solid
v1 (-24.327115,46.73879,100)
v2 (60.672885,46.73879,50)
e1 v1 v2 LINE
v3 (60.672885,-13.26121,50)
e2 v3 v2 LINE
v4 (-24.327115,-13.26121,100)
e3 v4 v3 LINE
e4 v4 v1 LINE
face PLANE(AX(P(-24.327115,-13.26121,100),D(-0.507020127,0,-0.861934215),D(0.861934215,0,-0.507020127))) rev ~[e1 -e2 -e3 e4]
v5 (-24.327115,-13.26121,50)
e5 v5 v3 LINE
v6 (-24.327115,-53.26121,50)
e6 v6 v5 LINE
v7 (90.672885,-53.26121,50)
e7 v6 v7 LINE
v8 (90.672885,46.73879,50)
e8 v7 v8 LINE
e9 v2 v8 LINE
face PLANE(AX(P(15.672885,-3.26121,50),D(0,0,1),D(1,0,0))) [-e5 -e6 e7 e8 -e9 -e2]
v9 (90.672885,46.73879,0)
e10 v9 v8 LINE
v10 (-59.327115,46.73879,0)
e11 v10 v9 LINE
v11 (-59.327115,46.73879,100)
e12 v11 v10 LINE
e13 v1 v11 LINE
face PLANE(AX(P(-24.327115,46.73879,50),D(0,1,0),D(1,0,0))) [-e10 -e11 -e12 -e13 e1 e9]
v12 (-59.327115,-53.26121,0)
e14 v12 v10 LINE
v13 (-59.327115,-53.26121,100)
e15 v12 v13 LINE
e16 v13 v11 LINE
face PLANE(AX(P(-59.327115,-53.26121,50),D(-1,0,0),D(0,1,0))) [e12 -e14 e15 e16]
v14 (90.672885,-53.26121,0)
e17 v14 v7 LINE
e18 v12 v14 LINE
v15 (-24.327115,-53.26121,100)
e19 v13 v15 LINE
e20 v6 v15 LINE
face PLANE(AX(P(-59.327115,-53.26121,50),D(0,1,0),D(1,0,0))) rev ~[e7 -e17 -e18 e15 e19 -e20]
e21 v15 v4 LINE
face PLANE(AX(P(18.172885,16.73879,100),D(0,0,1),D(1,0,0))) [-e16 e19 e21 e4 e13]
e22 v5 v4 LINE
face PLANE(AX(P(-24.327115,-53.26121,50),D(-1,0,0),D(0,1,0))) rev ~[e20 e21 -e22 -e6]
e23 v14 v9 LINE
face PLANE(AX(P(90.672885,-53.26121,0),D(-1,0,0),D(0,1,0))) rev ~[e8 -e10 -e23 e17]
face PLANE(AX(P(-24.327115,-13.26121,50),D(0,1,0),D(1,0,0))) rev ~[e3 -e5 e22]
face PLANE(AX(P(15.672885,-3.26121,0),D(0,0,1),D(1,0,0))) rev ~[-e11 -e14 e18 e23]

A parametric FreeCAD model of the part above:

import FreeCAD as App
import Part
import Sketcher

V = App.Vector
Q = App.Units.Quantity

doc = App.newDocument("Part")
params = doc.addObject("Spreadsheet::Sheet", "Params")
for row, (alias, value) in enumerate([
    ("sketch1_width", "150 mm"),
    ("sketch1_height", "100 mm"),
    ("pad1_length", "50 mm"),
    ("sketch2_width", "35 mm"),
    ("sketch2_height", "100 mm"),
    ("pad2_length", "50 mm"),
    ("sketch3_width", "85 mm"),
    ("sketch3_height", "60 mm"),
    ("pad3_length", "50 mm"),
    ("sketch4_width", "85 mm"),
    ("sketch4_height", "50 mm"),
    ("pocket1_length", "60 mm"),
], start=1):
    params.set(f"A{row}", alias)
    params.set(f"B{row}", "=" + value)
    params.setAlias(f"B{row}", alias)

body = doc.addObject("PartDesign::Body", "Body")

sketch1 = body.newObject("Sketcher::SketchObject", "Sketch")
sketch1.AttachmentSupport = (doc.getObject("XY_Plane"), [""])
sketch1.MapMode = "FlatFace"
sketch1.addGeometry([
    Part.LineSegment(V(-59, 47, 0), V(-59, -53, 0)),
    Part.LineSegment(V(-59, -53, 0), V(91, -53, 0)),
    Part.LineSegment(V(91, -53, 0), V(91, 47, 0)),
    Part.LineSegment(V(91, 47, 0), V(-59, 47, 0)),
], False)
sketch1.addConstraint([
    Sketcher.Constraint("Coincident", 0, 2, 1, 1),
    Sketcher.Constraint("Coincident", 1, 2, 2, 1),
    Sketcher.Constraint("Coincident", 2, 2, 3, 1),
    Sketcher.Constraint("Coincident", 3, 2, 0, 1),
    Sketcher.Constraint("Vertical", 0),
    Sketcher.Constraint("Horizontal", 1),
    Sketcher.Constraint("Vertical", 2),
    Sketcher.Constraint("Horizontal", 3),
    Sketcher.Constraint("DistanceX", 1, 1, 1, 2, Q("150 mm")),
    Sketcher.Constraint("DistanceY", 0, 2, 0, 1, Q("100 mm")),
    Sketcher.Constraint("DistanceY", 0, 2, -1, 1, Q("53.26121 mm")),
    Sketcher.Constraint("DistanceX", 0, 2, -1, 1, Q("59.327115 mm")),
])
sketch1.setExpression("Constraints[8]", "Params.sketch1_width")
sketch1.setExpression("Constraints[9]", "Params.sketch1_height")
pad1 = body.newObject("PartDesign::Pad", "Pad")
pad1.Profile = sketch1
pad1.setExpression("Length", "Params.pad1_length")

sketch2 = body.newObject("Sketcher::SketchObject", "Sketch001")
sketch2.AttachmentSupport = (doc.getObject("XY_Plane"), [""])
sketch2.MapMode = "FlatFace"
sketch2.AttachmentOffset = App.Placement(V(0, 0, 50), App.Rotation())
sketch2.addGeometry([
    Part.LineSegment(V(-59, 47, 0), V(-59, -53, 0)),
    Part.LineSegment(V(-59, -53, 0), V(-24, -53, 0)),
    Part.LineSegment(V(-24, -53, 0), V(-24, 47, 0)),
    Part.LineSegment(V(-24, 47, 0), V(-59, 47, 0)),
], False)
sketch2.addConstraint([
    Sketcher.Constraint("Coincident", 0, 2, 1, 1),
    Sketcher.Constraint("Coincident", 1, 2, 2, 1),
    Sketcher.Constraint("Coincident", 2, 2, 3, 1),
    Sketcher.Constraint("Coincident", 3, 2, 0, 1),
    Sketcher.Constraint("Vertical", 0),
    Sketcher.Constraint("Horizontal", 1),
    Sketcher.Constraint("Vertical", 2),
    Sketcher.Constraint("Horizontal", 3),
    Sketcher.Constraint("DistanceX", 1, 1, 1, 2, Q("35 mm")),
    Sketcher.Constraint("DistanceY", 0, 2, 0, 1, Q("100 mm")),
    Sketcher.Constraint("DistanceY", 0, 2, -1, 1, Q("53.26121 mm")),
    Sketcher.Constraint("DistanceX", 0, 2, -1, 1, Q("59.327115 mm")),
])
sketch2.setExpression("Constraints[8]", "Params.sketch2_width")
sketch2.setExpression("Constraints[9]", "Params.sketch2_height")
pad2 = body.newObject("PartDesign::Pad", "Pad001")
pad2.Profile = sketch2
pad2.setExpression("Length", "Params.pad2_length")

sketch3 = body.newObject("Sketcher::SketchObject", "Sketch002")
sketch3.AttachmentSupport = (doc.getObject("XY_Plane"), [""])
sketch3.MapMode = "FlatFace"
sketch3.AttachmentOffset = App.Placement(V(0, 0, 50), App.Rotation())
sketch3.addGeometry([
    Part.LineSegment(V(-24, 47, 0), V(-24, -13, 0)),
    Part.LineSegment(V(-24, -13, 0), V(61, -13, 0)),
    Part.LineSegment(V(61, -13, 0), V(61, 47, 0)),
    Part.LineSegment(V(61, 47, 0), V(-24, 47, 0)),
], False)
sketch3.addConstraint([
    Sketcher.Constraint("Coincident", 0, 2, 1, 1),
    Sketcher.Constraint("Coincident", 1, 2, 2, 1),
    Sketcher.Constraint("Coincident", 2, 2, 3, 1),
    Sketcher.Constraint("Coincident", 3, 2, 0, 1),
    Sketcher.Constraint("Vertical", 0),
    Sketcher.Constraint("Horizontal", 1),
    Sketcher.Constraint("Vertical", 2),
    Sketcher.Constraint("Horizontal", 3),
    Sketcher.Constraint("DistanceX", 1, 1, 1, 2, Q("85 mm")),
    Sketcher.Constraint("DistanceY", 0, 2, 0, 1, Q("60 mm")),
    Sketcher.Constraint("DistanceY", 0, 2, -1, 1, Q("13.26121 mm")),
    Sketcher.Constraint("DistanceX", 0, 2, -1, 1, Q("24.327115 mm")),
])
sketch3.setExpression("Constraints[8]", "Params.sketch3_width")
sketch3.setExpression("Constraints[9]", "Params.sketch3_height")
pad3 = body.newObject("PartDesign::Pad", "Pad002")
pad3.Profile = sketch3
pad3.setExpression("Length", "Params.pad3_length")

sketch4 = body.newObject("Sketcher::SketchObject", "Sketch003")
sketch4.AttachmentSupport = (doc.getObject("XZ_Plane"), [""])
sketch4.MapMode = "FlatFace"
sketch4.AttachmentOffset = App.Placement(V(0, 0, 13.26121), App.Rotation())
sketch4.addGeometry([
    Part.LineSegment(V(61, 100, 0), V(-24, 100, 0)),
    Part.LineSegment(V(-24, 100, 0), V(61, 50, 0)),
    Part.LineSegment(V(61, 50, 0), V(61, 100, 0)),
], False)
sketch4.addConstraint([
    Sketcher.Constraint("Coincident", 0, 2, 1, 1),
    Sketcher.Constraint("Coincident", 1, 2, 2, 1),
    Sketcher.Constraint("Coincident", 2, 2, 0, 1),
    Sketcher.Constraint("Horizontal", 0),
    Sketcher.Constraint("Vertical", 2),
    Sketcher.Constraint("DistanceX", 0, 2, 0, 1, Q("85 mm")),
    Sketcher.Constraint("DistanceY", 2, 1, 2, 2, Q("50 mm")),
    Sketcher.Constraint("DistanceY", -1, 1, 0, 2, Q("100 mm")),
    Sketcher.Constraint("DistanceX", 0, 2, -1, 1, Q("24.327115 mm")),
])
sketch4.setExpression("Constraints[5]", "Params.sketch4_width")
sketch4.setExpression("Constraints[6]", "Params.sketch4_height")
pocket1 = body.newObject("PartDesign::Pocket", "Pocket")
pocket1.Profile = sketch4
pocket1.setExpression("Length", "Params.pocket1_length")

doc.recompute()
